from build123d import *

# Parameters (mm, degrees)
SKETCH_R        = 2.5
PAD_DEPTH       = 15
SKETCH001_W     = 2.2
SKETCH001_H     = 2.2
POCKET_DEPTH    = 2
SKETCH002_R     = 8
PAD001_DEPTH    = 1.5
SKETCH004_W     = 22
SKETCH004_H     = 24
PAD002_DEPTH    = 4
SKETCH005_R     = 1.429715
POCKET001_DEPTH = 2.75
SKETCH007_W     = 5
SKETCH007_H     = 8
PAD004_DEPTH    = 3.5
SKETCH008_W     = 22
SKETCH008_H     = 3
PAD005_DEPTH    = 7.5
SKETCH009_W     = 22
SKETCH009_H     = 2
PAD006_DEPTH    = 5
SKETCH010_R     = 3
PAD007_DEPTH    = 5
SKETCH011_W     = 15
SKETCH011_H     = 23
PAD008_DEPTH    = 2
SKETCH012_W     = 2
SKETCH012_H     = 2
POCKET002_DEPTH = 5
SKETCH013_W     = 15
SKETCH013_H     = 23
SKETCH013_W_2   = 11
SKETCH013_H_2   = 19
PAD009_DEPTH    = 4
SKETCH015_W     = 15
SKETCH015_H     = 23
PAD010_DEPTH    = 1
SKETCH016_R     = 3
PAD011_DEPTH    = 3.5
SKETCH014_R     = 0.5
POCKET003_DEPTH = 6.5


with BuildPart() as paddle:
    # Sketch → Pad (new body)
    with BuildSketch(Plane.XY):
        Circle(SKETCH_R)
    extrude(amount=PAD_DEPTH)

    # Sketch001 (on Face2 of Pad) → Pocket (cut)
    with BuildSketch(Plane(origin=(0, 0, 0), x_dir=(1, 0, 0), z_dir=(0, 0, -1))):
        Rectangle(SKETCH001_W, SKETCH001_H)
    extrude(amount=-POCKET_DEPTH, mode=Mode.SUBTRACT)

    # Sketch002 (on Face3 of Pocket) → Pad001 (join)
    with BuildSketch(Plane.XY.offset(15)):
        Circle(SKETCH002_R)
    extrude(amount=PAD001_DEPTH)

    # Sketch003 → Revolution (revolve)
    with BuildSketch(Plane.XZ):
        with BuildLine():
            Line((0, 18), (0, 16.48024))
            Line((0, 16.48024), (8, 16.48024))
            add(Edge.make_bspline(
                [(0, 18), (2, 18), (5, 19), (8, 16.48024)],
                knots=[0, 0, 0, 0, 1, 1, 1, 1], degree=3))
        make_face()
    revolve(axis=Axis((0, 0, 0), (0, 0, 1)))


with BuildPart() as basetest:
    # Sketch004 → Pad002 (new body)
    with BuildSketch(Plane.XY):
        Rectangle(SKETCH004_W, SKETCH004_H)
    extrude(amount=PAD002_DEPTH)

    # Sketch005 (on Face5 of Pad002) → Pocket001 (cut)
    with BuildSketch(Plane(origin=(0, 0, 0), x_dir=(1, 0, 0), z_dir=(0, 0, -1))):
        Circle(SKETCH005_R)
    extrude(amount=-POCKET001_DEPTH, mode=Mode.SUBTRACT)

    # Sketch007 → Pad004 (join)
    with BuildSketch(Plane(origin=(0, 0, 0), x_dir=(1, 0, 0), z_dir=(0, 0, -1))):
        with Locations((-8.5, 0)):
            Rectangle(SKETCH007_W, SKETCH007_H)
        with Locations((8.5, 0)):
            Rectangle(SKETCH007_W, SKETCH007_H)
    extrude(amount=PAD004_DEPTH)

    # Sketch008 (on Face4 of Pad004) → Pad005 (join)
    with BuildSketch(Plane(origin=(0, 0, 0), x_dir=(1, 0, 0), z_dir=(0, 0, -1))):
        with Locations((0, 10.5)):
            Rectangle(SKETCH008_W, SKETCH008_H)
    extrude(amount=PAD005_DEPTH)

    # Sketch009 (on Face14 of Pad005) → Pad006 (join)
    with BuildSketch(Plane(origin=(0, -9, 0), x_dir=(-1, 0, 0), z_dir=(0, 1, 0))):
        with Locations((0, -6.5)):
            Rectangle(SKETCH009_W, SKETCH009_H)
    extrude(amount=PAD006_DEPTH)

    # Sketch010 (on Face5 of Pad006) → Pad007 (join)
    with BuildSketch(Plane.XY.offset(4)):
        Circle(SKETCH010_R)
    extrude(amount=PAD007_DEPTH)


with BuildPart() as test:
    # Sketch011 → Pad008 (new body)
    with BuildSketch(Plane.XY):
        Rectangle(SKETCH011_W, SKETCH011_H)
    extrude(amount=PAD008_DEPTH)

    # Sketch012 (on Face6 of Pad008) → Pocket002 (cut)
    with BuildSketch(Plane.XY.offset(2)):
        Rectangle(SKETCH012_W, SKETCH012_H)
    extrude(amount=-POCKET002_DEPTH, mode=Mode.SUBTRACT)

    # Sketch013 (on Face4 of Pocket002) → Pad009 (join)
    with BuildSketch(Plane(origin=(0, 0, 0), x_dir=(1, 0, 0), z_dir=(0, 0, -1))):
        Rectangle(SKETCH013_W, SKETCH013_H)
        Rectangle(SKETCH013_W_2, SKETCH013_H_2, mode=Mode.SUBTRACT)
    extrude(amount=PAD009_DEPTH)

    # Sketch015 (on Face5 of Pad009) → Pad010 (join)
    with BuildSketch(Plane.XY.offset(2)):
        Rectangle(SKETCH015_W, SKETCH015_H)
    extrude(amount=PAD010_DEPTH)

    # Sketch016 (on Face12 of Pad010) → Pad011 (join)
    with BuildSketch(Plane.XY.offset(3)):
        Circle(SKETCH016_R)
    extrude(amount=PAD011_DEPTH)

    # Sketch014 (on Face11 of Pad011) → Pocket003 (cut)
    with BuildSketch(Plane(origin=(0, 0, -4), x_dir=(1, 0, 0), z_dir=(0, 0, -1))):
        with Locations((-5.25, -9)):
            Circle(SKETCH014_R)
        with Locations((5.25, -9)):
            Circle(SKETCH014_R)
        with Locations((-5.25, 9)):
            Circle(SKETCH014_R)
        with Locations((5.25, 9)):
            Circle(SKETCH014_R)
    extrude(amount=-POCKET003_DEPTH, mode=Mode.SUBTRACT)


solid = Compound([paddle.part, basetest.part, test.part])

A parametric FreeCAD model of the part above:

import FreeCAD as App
import Part
import Sketcher

V = App.Vector

doc = App.newDocument("Part")
body = doc.addObject("PartDesign::Body", "Body")

# Sketch on XY plane
sketch1 = doc.addObject("Sketcher::SketchObject", "Sketch")
body.addObject(sketch1)
sketch1.AttachmentSupport = (doc.XY_Plane, [""])
sketch1.MapMode = "FlatFace"
sketch1.addGeometry(Part.Circle(V(0, 0, 0), V(0, 0, 1), 2.5), False)
sketch1.addConstraint(Sketcher.Constraint("Coincident", 0, 3, -1, 1))
sketch1.addConstraint(Sketcher.Constraint("Diameter", 0, 5.0))
pad1 = doc.addObject("PartDesign::Pad", "Pad")
body.addObject(pad1)
pad1.Profile = sketch1
pad1.Length = 15

# Sketch on XY plane
sketch2 = doc.addObject("Sketcher::SketchObject", "Sketch001")
body.addObject(sketch2)
sketch2.AttachmentSupport = (doc.XY_Plane, [""])
sketch2.MapMode = "FlatFace"
sketch2.addGeometry(Part.LineSegment(V(-1.1, -1.1, 0), V(-1.1, 1.1, 0)), False)
sketch2.addGeometry(Part.LineSegment(V(-1.1, 1.1, 0), V(1.1, 1.1, 0)), False)
sketch2.addGeometry(Part.LineSegment(V(1.1, 1.1, 0), V(1.1, -1.1, 0)), False)
sketch2.addGeometry(Part.LineSegment(V(1.1, -1.1, 0), V(-1.1, -1.1, 0)), False)
sketch2.addConstraint(Sketcher.Constraint("Coincident", 0, 2, 1, 1))
sketch2.addConstraint(Sketcher.Constraint("Coincident", 1, 2, 2, 1))
sketch2.addConstraint(Sketcher.Constraint("Coincident", 2, 2, 3, 1))
sketch2.addConstraint(Sketcher.Constraint("Coincident", 3, 2, 0, 1))
sketch2.addConstraint(Sketcher.Constraint("Vertical", 0))
sketch2.addConstraint(Sketcher.Constraint("Horizontal", 1))
sketch2.addConstraint(Sketcher.Constraint("Vertical", 2))
sketch2.addConstraint(Sketcher.Constraint("Horizontal", 3))
sketch2.addConstraint(Sketcher.Constraint("Symmetric", 0, 2, 2, 2, -1, 1))
sketch2.addConstraint(Sketcher.Constraint("Equal", 3, 0))
sketch2.addConstraint(Sketcher.Constraint("DistanceX", 1, 1, 1, 2, 2.2))
pocket1 = doc.addObject("PartDesign::Pocket", "Pocket")
body.addObject(pocket1)
pocket1.Profile = sketch2
pocket1.Length = 2
pocket1.Reversed = True

# Sketch on XY plane
sketch3 = doc.addObject("Sketcher::SketchObject", "Sketch002")
body.addObject(sketch3)
sketch3.AttachmentSupport = (doc.XY_Plane, [""])
sketch3.MapMode = "FlatFace"
sketch3.AttachmentOffset = App.Placement(V(0, 0, 15), App.Rotation())
sketch3.addGeometry(Part.Circle(V(0, 0, 0), V(0, 0, 1), 8), False)
sketch3.addConstraint(Sketcher.Constraint("Coincident", 0, 3, -1, 1))
sketch3.addConstraint(Sketcher.Constraint("Diameter", 0, 16.0))
pad2 = doc.addObject("PartDesign::Pad", "Pad001")
body.addObject(pad2)
pad2.Profile = sketch3
pad2.Length = 1.5

# Sketch on XZ plane
sketch4 = doc.addObject("Sketcher::SketchObject", "Sketch003")
body.addObject(sketch4)
sketch4.AttachmentSupport = (doc.XZ_Plane, [""])
sketch4.MapMode = "FlatFace"
sketch4.addGeometry(Part.LineSegment(V(0, 18, 0), V(0, 16.48024, 0)), False)
sketch4.addGeometry(Part.LineSegment(V(0, 16.48024, 0), V(8, 16.48024, 0)), False)
sketch4.addGeometry(Part.BSplineCurve([V(0, 18, 0), V(2, 18, 0), V(5, 19, 0), V(8, 16.48024, 0)], [4, 4], [0, 1], False, 3, [1, 1, 1, 1], False), False)
sketch4.addConstraint(Sketcher.Constraint("Block", 2))
sketch4.addConstraint(Sketcher.Constraint("Coincident", 0, 2, 1, 1))
sketch4.addConstraint(Sketcher.Constraint("Coincident", 1, 2, 2, 2))
sketch4.addConstraint(Sketcher.Constraint("Coincident", 2, 1, 0, 1))
sketch4.addConstraint(Sketcher.Constraint("Vertical", 0))
sketch4.addConstraint(Sketcher.Constraint("Horizontal", 1))
revolution = doc.addObject("PartDesign::Revolution", "Revolution")
body.addObject(revolution)
revolution.Profile = sketch4
revolution.ReferenceAxis = (sketch4, ["V_Axis"])
revolution.Angle = 360
body2 = doc.addObject("PartDesign::Body", "Body001")

# Sketch on XY plane
sketch5 = doc.addObject("Sketcher::SketchObject", "Sketch004")
body2.addObject(sketch5)
sketch5.AttachmentSupport = (doc.getObject("XY_Plane001"), [""])
sketch5.MapMode = "FlatFace"
sketch5.addGeometry(Part.LineSegment(V(-11, 12, 0), V(-11, -12, 0)), False)
sketch5.addGeometry(Part.LineSegment(V(-11, -12, 0), V(11, -12, 0)), False)
sketch5.addGeometry(Part.LineSegment(V(11, -12, 0), V(11, 12, 0)), False)
sketch5.addGeometry(Part.LineSegment(V(11, 12, 0), V(-11, 12, 0)), False)
sketch5.addConstraint(Sketcher.Constraint("Coincident", 0, 2, 1, 1))
sketch5.addConstraint(Sketcher.Constraint("Coincident", 1, 2, 2, 1))
sketch5.addConstraint(Sketcher.Constraint("Coincident", 2, 2, 3, 1))
sketch5.addConstraint(Sketcher.Constraint("Coincident", 3, 2, 0, 1))
sketch5.addConstraint(Sketcher.Constraint("Vertical", 0))
sketch5.addConstraint(Sketcher.Constraint("Horizontal", 1))
sketch5.addConstraint(Sketcher.Constraint("Vertical", 2))
sketch5.addConstraint(Sketcher.Constraint("Horizontal", 3))
sketch5.addConstraint(Sketcher.Constraint("Symmetric", 0, 2, 2, 2, -1, 1))
sketch5.addConstraint(Sketcher.Constraint("DistanceX", 1, 1, 1, 2, 22.0))
sketch5.addConstraint(Sketcher.Constraint("DistanceY", 0, 2, 0, 1, 24.0))
pad3 = doc.addObject("PartDesign::Pad", "Pad002")
body2.addObject(pad3)
pad3.Profile = sketch5
pad3.Length = 4

# Sketch on XY plane
sketch6 = doc.addObject("Sketcher::SketchObject", "Sketch005")
body2.addObject(sketch6)
sketch6.AttachmentSupport = (doc.getObject("XY_Plane001"), [""])
sketch6.MapMode = "FlatFace"
sketch6.addGeometry(Part.Circle(V(0, 0, 0), V(0, 0, 1), 1.4), False)
sketch6.addConstraint(Sketcher.Constraint("Coincident", 0, 3, -1, 1))
sketch6.addConstraint(Sketcher.Constraint("Diameter", 0, 2.85943))
pocket2 = doc.addObject("PartDesign::Pocket", "Pocket001")
body2.addObject(pocket2)
pocket2.Profile = sketch6
pocket2.Length = 2.75
pocket2.Reversed = True

# Sketch on XY plane
sketch7 = doc.addObject("Sketcher::SketchObject", "Sketch006")
body2.addObject(sketch7)
sketch7.AttachmentSupport = (doc.getObject("XY_Plane001"), [""])
sketch7.MapMode = "FlatFace"
sketch7.addGeometry(Part.LineSegment(V(-11, -4, 0), V(-11, 4, 0)), False)
sketch7.addGeometry(Part.LineSegment(V(-11, 4, 0), V(-6, 4, 0)), False)
sketch7.addGeometry(Part.LineSegment(V(-6, 4, 0), V(-6, -4, 0)), False)
sketch7.addGeometry(Part.LineSegment(V(-6, -4, 0), V(-11, -4, 0)), False)
sketch7.addGeometry(Part.LineSegment(V(6, -4, 0), V(6, 4, 0)), False)
sketch7.addGeometry(Part.LineSegment(V(6, 4, 0), V(11, 4, 0)), False)
sketch7.addGeometry(Part.LineSegment(V(11, 4, 0), V(11, -4, 0)), False)
sketch7.addGeometry(Part.LineSegment(V(11, -4, 0), V(6, -4, 0)), False)
sketch7.addConstraint(Sketcher.Constraint("Coincident", 0, 2, 1, 1))
sketch7.addConstraint(Sketcher.Constraint("Coincident", 1, 2, 2, 1))
sketch7.addConstraint(Sketcher.Constraint("Coincident", 2, 2, 3, 1))
sketch7.addConstraint(Sketcher.Constraint("Coincident", 3, 2, 0, 1))
sketch7.addConstraint(Sketcher.Constraint("Coincident", 4, 2, 5, 1))
sketch7.addConstraint(Sketcher.Constraint("Coincident", 5, 2, 6, 1))
sketch7.addConstraint(Sketcher.Constraint("Coincident", 6, 2, 7, 1))
sketch7.addConstraint(Sketcher.Constraint("Coincident", 7, 2, 4, 1))
sketch7.addConstraint(Sketcher.Constraint("Vertical", 0))
sketch7.addConstraint(Sketcher.Constraint("Horizontal", 1))
sketch7.addConstraint(Sketcher.Constraint("Vertical", 2))
sketch7.addConstraint(Sketcher.Constraint("Horizontal", 3))
sketch7.addConstraint(Sketcher.Constraint("Vertical", 4))
sketch7.addConstraint(Sketcher.Constraint("Horizontal", 5))
sketch7.addConstraint(Sketcher.Constraint("Vertical", 6))
sketch7.addConstraint(Sketcher.Constraint("Horizontal", 7))
sketch7.addConstraint(Sketcher.Constraint("Symmetric", 2, 2, 4, 2, -1, 1))
sketch7.addConstraint(Sketcher.Constraint("Symmetric", 0, 2, 6, 2, -1, 1))
sketch7.addConstraint(Sketcher.Constraint("Horizontal", 1, 2, 4, 2))
sketch7.addConstraint(Sketcher.Constraint("DistanceX", 1, 1, 1, 2, 5.0))
sketch7.addConstraint(Sketcher.Constraint("DistanceY", 0, 1, 0, 2, 8.0))
sketch7.addConstraint(Sketcher.Constraint("DistanceX", 0, 2, -1, 1, 11.0))
pad4 = doc.addObject("PartDesign::Pad", "Pad003")
body2.addObject(pad4)
pad4.Profile = sketch7
pad4.Length = 3.5
pad4.Reversed = True

# Sketch on XY plane
sketch8 = doc.addObject("Sketcher::SketchObject", "Sketch007")
body2.addObject(sketch8)
sketch8.AttachmentSupport = (doc.getObject("XY_Plane001"), [""])
sketch8.MapMode = "FlatFace"
sketch8.addGeometry(Part.LineSegment(V(-11, -12, 0), V(-11, -9, 0)), False)
sketch8.addGeometry(Part.LineSegment(V(-11, -9, 0), V(11, -9, 0)), False)
sketch8.addGeometry(Part.LineSegment(V(11, -9, 0), V(11, -12, 0)), False)
sketch8.addGeometry(Part.LineSegment(V(11, -12, 0), V(-11, -12, 0)), False)
sketch8.addConstraint(Sketcher.Constraint("Coincident", 0, 2, 1, 1))
sketch8.addConstraint(Sketcher.Constraint("Coincident", 1, 2, 2, 1))
sketch8.addConstraint(Sketcher.Constraint("Coincident", 2, 2, 3, 1))
sketch8.addConstraint(Sketcher.Constraint("Coincident", 3, 2, 0, 1))
sketch8.addConstraint(Sketcher.Constraint("Vertical", 0))
sketch8.addConstraint(Sketcher.Constraint("Horizontal", 1))
sketch8.addConstraint(Sketcher.Constraint("Vertical", 2))
sketch8.addConstraint(Sketcher.Constraint("Horizontal", 3))
sketch8.addConstraint(Sketcher.Constraint("DistanceX", 1, 1, 1, 2, 22.0))
sketch8.addConstraint(Sketcher.Constraint("DistanceY", 0, 1, 0, 2, 3.0))
sketch8.addConstraint(Sketcher.Constraint("DistanceX", 0, 2, -1, 1, 11.0))
sketch8.addConstraint(Sketcher.Constraint("DistanceY", 0, 2, -1, 1, 9.0))
pad5 = doc.addObject("PartDesign::Pad", "Pad004")
body2.addObject(pad5)
pad5.Profile = sketch8
pad5.Length = 7.5
pad5.Reversed = True

# Sketch on XZ plane
sketch9 = doc.addObject("Sketcher::SketchObject", "Sketch008")
body2.addObject(sketch9)
sketch9.AttachmentSupport = (doc.getObject("XZ_Plane001"), [""])
sketch9.MapMode = "FlatFace"
sketch9.AttachmentOffset = App.Placement(V(0, 0, 9), App.Rotation())
sketch9.addGeometry(Part.LineSegment(V(11, -5.5, 0), V(11, -7.5, 0)), False)
sketch9.addGeometry(Part.LineSegment(V(11, -7.5, 0), V(-11, -7.5, 0)), False)
sketch9.addGeometry(Part.LineSegment(V(-11, -7.5, 0), V(-11, -5.5, 0)), False)
sketch9.addGeometry(Part.LineSegment(V(-11, -5.5, 0), V(11, -5.5, 0)), False)
sketch9.addConstraint(Sketcher.Constraint("Coincident", 0, 2, 1, 1))
sketch9.addConstraint(Sketcher.Constraint("Coincident", 1, 2, 2, 1))
sketch9.addConstraint(Sketcher.Constraint("Coincident", 2, 2, 3, 1))
sketch9.addConstraint(Sketcher.Constraint("Coincident", 3, 2, 0, 1))
sketch9.addConstraint(Sketcher.Constraint("Vertical", 0))
sketch9.addConstraint(Sketcher.Constraint("Horizontal", 1))
sketch9.addConstraint(Sketcher.Constraint("Vertical", 2))
sketch9.addConstraint(Sketcher.Constraint("Horizontal", 3))
sketch9.addConstraint(Sketcher.Constraint("DistanceX", 1, 2, 1, 1, 22.0))
sketch9.addConstraint(Sketcher.Constraint("DistanceY", 0, 2, 0, 1, 2.0))
sketch9.addConstraint(Sketcher.Constraint("DistanceX", -1, 1, 0, 2, 11.0))
sketch9.addConstraint(Sketcher.Constraint("DistanceY", 0, 2, -1, 1, 7.5))
pad6 = doc.addObject("PartDesign::Pad", "Pad005")
body2.addObject(pad6)
pad6.Profile = sketch9
pad6.Length = 5
pad6.Reversed = True

# Sketch on XY plane
sketch10 = doc.addObject("Sketcher::SketchObject", "Sketch009")
body2.addObject(sketch10)
sketch10.AttachmentSupport = (doc.getObject("XY_Plane001"), [""])
sketch10.MapMode = "FlatFace"
sketch10.AttachmentOffset = App.Placement(V(0, 0, 4), App.Rotation())
sketch10.addGeometry(Part.Circle(V(0, 0, 0), V(0, 0, 1), 3), False)
sketch10.addConstraint(Sketcher.Constraint("Coincident", 0, 3, -1, 1))
sketch10.addConstraint(Sketcher.Constraint("Diameter", 0, 6.0))
pad7 = doc.addObject("PartDesign::Pad", "Pad006")
body2.addObject(pad7)
pad7.Profile = sketch10
pad7.Length = 5
body3 = doc.addObject("PartDesign::Body", "Body002")

# Sketch on XY plane
sketch11 = doc.addObject("Sketcher::SketchObject", "Sketch010")
body3.addObject(sketch11)
sketch11.AttachmentSupport = (doc.getObject("XY_Plane002"), [""])
sketch11.MapMode = "FlatFace"
sketch11.addGeometry(Part.LineSegment(V(-8, 12, 0), V(-8, -12, 0)), False)
sketch11.addGeometry(Part.LineSegment(V(-8, -12, 0), V(8, -12, 0)), False)
sketch11.addGeometry(Part.LineSegment(V(8, -12, 0), V(8, 12, 0)), False)
sketch11.addGeometry(Part.LineSegment(V(8, 12, 0), V(-8, 12, 0)), False)
sketch11.addConstraint(Sketcher.Constraint("Coincident", 0, 2, 1, 1))
sketch11.addConstraint(Sketcher.Constraint("Coincident", 1, 2, 2, 1))
sketch11.addConstraint(Sketcher.Constraint("Coincident", 2, 2, 3, 1))
sketch11.addConstraint(Sketcher.Constraint("Coincident", 3, 2, 0, 1))
sketch11.addConstraint(Sketcher.Constraint("Vertical", 0))
sketch11.addConstraint(Sketcher.Constraint("Horizontal", 1))
sketch11.addConstraint(Sketcher.Constraint("Vertical", 2))
sketch11.addConstraint(Sketcher.Constraint("Horizontal", 3))
sketch11.addConstraint(Sketcher.Constraint("Symmetric", 0, 2, 2, 2, -1, 1))
sketch11.addConstraint(Sketcher.Constraint("DistanceX", 1, 1, 1, 2, 15.0))
sketch11.addConstraint(Sketcher.Constraint("DistanceY", 0, 2, 0, 1, 23.0))
pad8 = doc.addObject("PartDesign::Pad", "Pad007")
body3.addObject(pad8)
pad8.Profile = sketch11
pad8.Length = 2

# Sketch on XY plane
sketch12 = doc.addObject("Sketcher::SketchObject", "Sketch011")
body3.addObject(sketch12)
sketch12.AttachmentSupport = (doc.getObject("XY_Plane002"), [""])
sketch12.MapMode = "FlatFace"
sketch12.AttachmentOffset = App.Placement(V(0, 0, 2), App.Rotation())
sketch12.addGeometry(Part.LineSegment(V(-1, 1, 0), V(-1, -1, 0)), False)
sketch12.addGeometry(Part.LineSegment(V(-1, -1, 0), V(1, -1, 0)), False)
sketch12.addGeometry(Part.LineSegment(V(1, -1, 0), V(1, 1, 0)), False)
sketch12.addGeometry(Part.LineSegment(V(1, 1, 0), V(-1, 1, 0)), False)
sketch12.addConstraint(Sketcher.Constraint("Coincident", 0, 2, 1, 1))
sketch12.addConstraint(Sketcher.Constraint("Coincident", 1, 2, 2, 1))
sketch12.addConstraint(Sketcher.Constraint("Coincident", 2, 2, 3, 1))
sketch12.addConstraint(Sketcher.Constraint("Coincident", 3, 2, 0, 1))
sketch12.addConstraint(Sketcher.Constraint("Vertical", 0))
sketch12.addConstraint(Sketcher.Constraint("Horizontal", 1))
sketch12.addConstraint(Sketcher.Constraint("Vertical", 2))
sketch12.addConstraint(Sketcher.Constraint("Horizontal", 3))
sketch12.addConstraint(Sketcher.Constraint("Symmetric", 0, 2, 2, 2, -1, 1))
sketch12.addConstraint(Sketcher.Constraint("Equal", 3, 0))
sketch12.addConstraint(Sketcher.Constraint("DistanceX", 1, 1, 1, 2, 2.0))
pocket3 = doc.addObject("PartDesign::Pocket", "Pocket002")
body3.addObject(pocket3)
pocket3.Profile = sketch12
pocket3.Length = 5

# Sketch on XY plane
sketch13 = doc.addObject("Sketcher::SketchObject", "Sketch012")
body3.addObject(sketch13)
sketch13.AttachmentSupport = (doc.getObject("XY_Plane002"), [""])
sketch13.MapMode = "FlatFace"
sketch13.addGeometry(Part.LineSegment(V(-8, -12, 0), V(-8, 12, 0)), False)
sketch13.addGeometry(Part.LineSegment(V(-8, 12, 0), V(8, 12, 0)), False)
sketch13.addGeometry(Part.LineSegment(V(8, 12, 0), V(8, -12, 0)), False)
sketch13.addGeometry(Part.LineSegment(V(8, -12, 0), V(-8, -12, 0)), False)
sketch13.addGeometry(Part.LineSegment(V(6, 10, 0), V(-6, 10, 0)), False)
sketch13.addGeometry(Part.LineSegment(V(-6, 10, 0), V(-6, -10, 0)), False)
sketch13.addGeometry(Part.LineSegment(V(-6, -10, 0), V(6, -10, 0)), False)
sketch13.addGeometry(Part.LineSegment(V(6, -10, 0), V(6, 10, 0)), False)
sketch13.addConstraint(Sketcher.Constraint("Coincident", 0, 2, 1, 1))
sketch13.addConstraint(Sketcher.Constraint("Coincident", 1, 2, 2, 1))
sketch13.addConstraint(Sketcher.Constraint("Coincident", 2, 2, 3, 1))
sketch13.addConstraint(Sketcher.Constraint("Coincident", 3, 2, 0, 1))
sketch13.addConstraint(Sketcher.Constraint("Coincident", 4, 2, 5, 1))
sketch13.addConstraint(Sketcher.Constraint("Coincident", 5, 2, 6, 1))
sketch13.addConstraint(Sketcher.Constraint("Coincident", 6, 2, 7, 1))
sketch13.addConstraint(Sketcher.Constraint("Coincident", 7, 2, 4, 1))
sketch13.addConstraint(Sketcher.Constraint("Vertical", 0))
sketch13.addConstraint(Sketcher.Constraint("Horizontal", 1))
sketch13.addConstraint(Sketcher.Constraint("Vertical", 2))
sketch13.addConstraint(Sketcher.Constraint("Horizontal", 3))
sketch13.addConstraint(Sketcher.Constraint("Horizontal", 4))
sketch13.addConstraint(Sketcher.Constraint("Vertical", 5))
sketch13.addConstraint(Sketcher.Constraint("Horizontal", 6))
sketch13.addConstraint(Sketcher.Constraint("Vertical", 7))
sketch13.addConstraint(Sketcher.Constraint("Symmetric", 0, 2, 2, 2, -1, 1))
sketch13.addConstraint(Sketcher.Constraint("Symmetric", 4, 2, 6, 2, -1, 1))
sketch13.addConstraint(Sketcher.Constraint("DistanceX", 1, 1, 1, 2, 15.0))
sketch13.addConstraint(Sketcher.Constraint("DistanceX", 4, 2, 4, 1, 11.0))
sketch13.addConstraint(Sketcher.Constraint("DistanceY", 0, 1, 0, 2, 23.0))
sketch13.addConstraint(Sketcher.Constraint("DistanceY", 5, 2, 5, 1, 19.0))
pad9 = doc.addObject("PartDesign::Pad", "Pad008")
body3.addObject(pad9)
pad9.Profile = sketch13
pad9.Length = 4
pad9.Reversed = True

# Sketch on XY plane
sketch14 = doc.addObject("Sketcher::SketchObject", "Sketch013")
body3.addObject(sketch14)
sketch14.AttachmentSupport = (doc.getObject("XY_Plane002"), [""])
sketch14.MapMode = "FlatFace"
sketch14.AttachmentOffset = App.Placement(V(0, 0, 2), App.Rotation())
sketch14.addGeometry(Part.LineSegment(V(-8, 12, 0), V(-8, -12, 0)), False)
sketch14.addGeometry(Part.LineSegment(V(-8, -12, 0), V(8, -12, 0)), False)
sketch14.addGeometry(Part.LineSegment(V(8, -12, 0), V(8, 12, 0)), False)
sketch14.addGeometry(Part.LineSegment(V(8, 12, 0), V(-8, 12, 0)), False)
sketch14.addConstraint(Sketcher.Constraint("Coincident", 0, 2, 1, 1))
sketch14.addConstraint(Sketcher.Constraint("Coincident", 1, 2, 2, 1))
sketch14.addConstraint(Sketcher.Constraint("Coincident", 2, 2, 3, 1))
sketch14.addConstraint(Sketcher.Constraint("Coincident", 3, 2, 0, 1))
sketch14.addConstraint(Sketcher.Constraint("Vertical", 0))
sketch14.addConstraint(Sketcher.Constraint("Horizontal", 1))
sketch14.addConstraint(Sketcher.Constraint("Vertical", 2))
sketch14.addConstraint(Sketcher.Constraint("Horizontal", 3))
sketch14.addConstraint(Sketcher.Constraint("Symmetric", 0, 2, 2, 2, -1, 1))
sketch14.addConstraint(Sketcher.Constraint("DistanceX", 1, 1, 1, 2, 15.0))
sketch14.addConstraint(Sketcher.Constraint("DistanceY", 0, 2, 0, 1, 23.0))
pad10 = doc.addObject("PartDesign::Pad", "Pad009")
body3.addObject(pad10)
pad10.Profile = sketch14
pad10.Length = 1

# Sketch on XY plane
sketch15 = doc.addObject("Sketcher::SketchObject", "Sketch014")
body3.addObject(sketch15)
sketch15.AttachmentSupport = (doc.getObject("XY_Plane002"), [""])
sketch15.MapMode = "FlatFace"
sketch15.AttachmentOffset = App.Placement(V(0, 0, 3), App.Rotation())
sketch15.addGeometry(Part.Circle(V(0, 0, 0), V(0, 0, 1), 3), False)
sketch15.addConstraint(Sketcher.Constraint("Coincident", 0, 3, -1, 1))
sketch15.addConstraint(Sketcher.Constraint("Diameter", 0, 6.0))
pad11 = doc.addObject("PartDesign::Pad", "Pad010")
body3.addObject(pad11)
pad11.Profile = sketch15
pad11.Length = 3.5

# Sketch on XY plane
sketch16 = doc.addObject("Sketcher::SketchObject", "Sketch015")
body3.addObject(sketch16)
sketch16.AttachmentSupport = (doc.getObject("XY_Plane002"), [""])
sketch16.MapMode = "FlatFace"
sketch16.AttachmentOffset = App.Placement(V(0, 0, -4), App.Rotation())
sketch16.addGeometry(Part.Circle(V(-5.2, 9, 0), V(0, 0, 1), 0.5), False)
sketch16.addGeometry(Part.Circle(V(5.2, 9, 0), V(0, 0, 1), 0.5), False)
sketch16.addGeometry(Part.Circle(V(-5.2, -9, 0), V(0, 0, 1), 0.5), False)
sketch16.addGeometry(Part.Circle(V(5.2, -9, 0), V(0, 0, 1), 0.5), False)
sketch16.addConstraint(Sketcher.Constraint("Equal", 0, 1))
sketch16.addConstraint(Sketcher.Constraint("Equal", 1, 2))
sketch16.addConstraint(Sketcher.Constraint("Equal", 2, 3))
sketch16.addConstraint(Sketcher.Constraint("Symmetric", 1, 3, 2, 3, -1, 1))
sketch16.addConstraint(Sketcher.Constraint("Symmetric", 0, 3, 3, 3, -1, 1))
sketch16.addConstraint(Sketcher.Constraint("Symmetric", 0, 3, 1, 3, -2))
sketch16.addConstraint(Sketcher.Constraint("Diameter", 0, 1.0))
sketch16.addConstraint(Sketcher.Constraint("DistanceY", -1, 1, 0, 3, 9.0))
sketch16.addConstraint(Sketcher.Constraint("DistanceX", 0, 3, 1, 3, 10.5))
pocket4 = doc.addObject("PartDesign::Pocket", "Pocket003")
body3.addObject(pocket4)
pocket4.Profile = sketch16
pocket4.Length = 6.5
pocket4.Reversed = True

doc.recompute()
